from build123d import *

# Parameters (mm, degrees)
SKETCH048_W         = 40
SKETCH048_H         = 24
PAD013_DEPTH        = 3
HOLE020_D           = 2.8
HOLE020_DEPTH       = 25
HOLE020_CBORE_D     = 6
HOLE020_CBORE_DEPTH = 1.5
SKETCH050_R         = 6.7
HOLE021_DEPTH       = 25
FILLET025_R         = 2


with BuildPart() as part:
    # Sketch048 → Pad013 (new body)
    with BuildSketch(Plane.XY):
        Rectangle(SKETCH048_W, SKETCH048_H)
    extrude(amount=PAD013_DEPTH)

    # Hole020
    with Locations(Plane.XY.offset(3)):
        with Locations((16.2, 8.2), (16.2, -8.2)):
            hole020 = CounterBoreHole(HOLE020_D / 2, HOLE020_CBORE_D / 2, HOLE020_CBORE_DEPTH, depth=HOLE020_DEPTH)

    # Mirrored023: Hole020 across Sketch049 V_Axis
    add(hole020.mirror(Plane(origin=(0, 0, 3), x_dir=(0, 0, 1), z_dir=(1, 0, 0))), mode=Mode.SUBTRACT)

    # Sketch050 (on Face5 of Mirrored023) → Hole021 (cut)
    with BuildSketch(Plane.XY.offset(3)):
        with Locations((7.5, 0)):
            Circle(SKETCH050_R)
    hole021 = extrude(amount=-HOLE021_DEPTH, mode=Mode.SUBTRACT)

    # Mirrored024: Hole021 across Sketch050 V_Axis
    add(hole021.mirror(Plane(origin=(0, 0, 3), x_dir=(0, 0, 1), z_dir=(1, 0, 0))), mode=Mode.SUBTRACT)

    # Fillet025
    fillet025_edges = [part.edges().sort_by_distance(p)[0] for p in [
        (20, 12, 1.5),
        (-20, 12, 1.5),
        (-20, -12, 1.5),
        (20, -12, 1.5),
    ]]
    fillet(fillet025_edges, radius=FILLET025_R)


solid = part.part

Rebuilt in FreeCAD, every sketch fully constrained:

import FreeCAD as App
import Part
import Sketcher

V = App.Vector


def edges_at(feature, points):
    """Names of the edges that pass closest to the given points."""
    edges = feature.Shape.Edges
    near = lambda p: min(range(len(edges)), key=lambda i: edges[i].distToShape(Part.Vertex(*p))[0])
    return sorted({f"Edge{near(p) + 1}" for p in points})

doc = App.newDocument("Part")
params = doc.addObject("Spreadsheet::Sheet", "Params")
for row, (alias, value) in enumerate([
    ("sketch1_width", "40 mm"),
    ("sketch1_height", "24 mm"),
    ("pad1_length", "3 mm"),
    ("sketch2_diameter", "2.8 mm"),
    ("hole_diameter", "2.8 mm"),
    ("hole_depth", "25 mm"),
    ("hole_cbore_diameter", "6 mm"),
    ("hole_cbore_depth", "1.5 mm"),
    ("sketch3_diameter", "13.4 mm"),
    ("pocket1_length", "25 mm"),
    ("fillet_radius", "2 mm"),
], start=1):
    params.set(f"A{row}", alias)
    params.set(f"B{row}", "=" + value)
    params.setAlias(f"B{row}", alias)

body = doc.addObject("PartDesign::Body", "Body")

# Sketch on XY plane
sketch1 = doc.addObject("Sketcher::SketchObject", "Sketch")
body.addObject(sketch1)
sketch1.AttachmentSupport = (doc.XY_Plane, [""])
sketch1.MapMode = "FlatFace"
sketch1.addGeometry([
    Part.LineSegment(V(-20, 12, 0), V(-20, -12, 0)),
    Part.LineSegment(V(-20, -12, 0), V(20, -12, 0)),
    Part.LineSegment(V(20, -12, 0), V(20, 12, 0)),
    Part.LineSegment(V(20, 12, 0), V(-20, 12, 0)),
], False)
sketch1.addConstraint([
    Sketcher.Constraint("Coincident", 0, 2, 1, 1),
    Sketcher.Constraint("Coincident", 1, 2, 2, 1),
    Sketcher.Constraint("Coincident", 2, 2, 3, 1),
    Sketcher.Constraint("Coincident", 3, 2, 0, 1),
    Sketcher.Constraint("Vertical", 0),
    Sketcher.Constraint("Horizontal", 1),
    Sketcher.Constraint("Vertical", 2),
    Sketcher.Constraint("Horizontal", 3),
    Sketcher.Constraint("Symmetric", 0, 2, 2, 2, -1, 1),
    Sketcher.Constraint("DistanceX", 1, 1, 1, 2, 40.0),
    Sketcher.Constraint("DistanceY", 0, 2, 0, 1, 24.0),
])
sketch1.setExpression("Constraints[9]", "Params.sketch1_width")
sketch1.setExpression("Constraints[10]", "Params.sketch1_height")
pad1 = doc.addObject("PartDesign::Pad", "Pad")
body.addObject(pad1)
pad1.Profile = sketch1
pad1.setExpression("Length", "Params.pad1_length")

# Sketch on XY plane
sketch2 = doc.addObject("Sketcher::SketchObject", "Sketch001")
body.addObject(sketch2)
sketch2.AttachmentSupport = (doc.XY_Plane, [""])
sketch2.MapMode = "FlatFace"
sketch2.AttachmentOffset = App.Placement(V(0, 0, 3), App.Rotation())
sketch2.addGeometry([
    Part.Circle(V(16.2, 8.2, 0), V(0, 0, 1), 1.4),
    Part.Circle(V(16.2, -8.2, 0), V(0, 0, 1), 1.4),
], False)
sketch2.addConstraint([
    Sketcher.Constraint("Equal", 0, 1),
    Sketcher.Constraint("Symmetric", 0, 3, 1, 3, -1),
    Sketcher.Constraint("Diameter", 0, 2.8),
    Sketcher.Constraint("DistanceX", -1, 1, 0, 3, 16.2),
    Sketcher.Constraint("DistanceY", -1, 1, 0, 3, 8.2),
])
sketch2.setExpression("Constraints[2]", "Params.sketch2_diameter")
doc.recompute()
hole = doc.addObject("PartDesign::Hole", "Hole")
body.addObject(hole)
hole.Profile = sketch2
hole.ThreadType = "None"
hole.setExpression("Diameter", "Params.hole_diameter")
hole.DepthType = "Dimension"
hole.setExpression("Depth", "Params.hole_depth")
hole.DrillPoint = "Flat"
hole.HoleCutType = "Counterbore"
hole.setExpression("HoleCutDiameter", "Params.hole_cbore_diameter")
hole.setExpression("HoleCutDepth", "Params.hole_cbore_depth")
doc.recompute()

mirrored = doc.addObject("PartDesign::Mirrored", "Mirrored")
body.addObject(mirrored)
mirrored.Originals = [hole]
mirrored.MirrorPlane = (doc.YZ_Plane, [""])
body.Tip = mirrored

# Sketch on XY plane
sketch3 = doc.addObject("Sketcher::SketchObject", "Sketch002")
body.addObject(sketch3)
sketch3.AttachmentSupport = (doc.XY_Plane, [""])
sketch3.MapMode = "FlatFace"
sketch3.AttachmentOffset = App.Placement(V(0, 0, 3), App.Rotation())
sketch3.addGeometry(Part.Circle(V(8, 0, 0), V(0, 0, 1), 7), False)
sketch3.addConstraint([
    Sketcher.Constraint("PointOnObject", 0, 3, -1),
    Sketcher.Constraint("Diameter", 0, 13.4),
    Sketcher.Constraint("DistanceX", -1, 1, 0, 3, 7.5),
])
sketch3.setExpression("Constraints[1]", "Params.sketch3_diameter")
pocket1 = doc.addObject("PartDesign::Pocket", "Pocket")
body.addObject(pocket1)
pocket1.Profile = sketch3
pocket1.setExpression("Length", "Params.pocket1_length")
doc.recompute()

mirrored2 = doc.addObject("PartDesign::Mirrored", "Mirrored001")
body.addObject(mirrored2)
mirrored2.Originals = [pocket1]
mirrored2.MirrorPlane = (doc.YZ_Plane, [""])
body.Tip = mirrored2
doc.recompute()

fillet = doc.addObject("PartDesign::Fillet", "Fillet")
body.addObject(fillet)
fillet.Base = (mirrored2, edges_at(mirrored2, [
    (20, 12, 1.5),
    (-20, 12, 1.5),
    (-20, -12, 1.5),
    (20, -12, 1.5),
]))
fillet.setExpression("Radius", "Params.fillet_radius")

doc.recompute()
